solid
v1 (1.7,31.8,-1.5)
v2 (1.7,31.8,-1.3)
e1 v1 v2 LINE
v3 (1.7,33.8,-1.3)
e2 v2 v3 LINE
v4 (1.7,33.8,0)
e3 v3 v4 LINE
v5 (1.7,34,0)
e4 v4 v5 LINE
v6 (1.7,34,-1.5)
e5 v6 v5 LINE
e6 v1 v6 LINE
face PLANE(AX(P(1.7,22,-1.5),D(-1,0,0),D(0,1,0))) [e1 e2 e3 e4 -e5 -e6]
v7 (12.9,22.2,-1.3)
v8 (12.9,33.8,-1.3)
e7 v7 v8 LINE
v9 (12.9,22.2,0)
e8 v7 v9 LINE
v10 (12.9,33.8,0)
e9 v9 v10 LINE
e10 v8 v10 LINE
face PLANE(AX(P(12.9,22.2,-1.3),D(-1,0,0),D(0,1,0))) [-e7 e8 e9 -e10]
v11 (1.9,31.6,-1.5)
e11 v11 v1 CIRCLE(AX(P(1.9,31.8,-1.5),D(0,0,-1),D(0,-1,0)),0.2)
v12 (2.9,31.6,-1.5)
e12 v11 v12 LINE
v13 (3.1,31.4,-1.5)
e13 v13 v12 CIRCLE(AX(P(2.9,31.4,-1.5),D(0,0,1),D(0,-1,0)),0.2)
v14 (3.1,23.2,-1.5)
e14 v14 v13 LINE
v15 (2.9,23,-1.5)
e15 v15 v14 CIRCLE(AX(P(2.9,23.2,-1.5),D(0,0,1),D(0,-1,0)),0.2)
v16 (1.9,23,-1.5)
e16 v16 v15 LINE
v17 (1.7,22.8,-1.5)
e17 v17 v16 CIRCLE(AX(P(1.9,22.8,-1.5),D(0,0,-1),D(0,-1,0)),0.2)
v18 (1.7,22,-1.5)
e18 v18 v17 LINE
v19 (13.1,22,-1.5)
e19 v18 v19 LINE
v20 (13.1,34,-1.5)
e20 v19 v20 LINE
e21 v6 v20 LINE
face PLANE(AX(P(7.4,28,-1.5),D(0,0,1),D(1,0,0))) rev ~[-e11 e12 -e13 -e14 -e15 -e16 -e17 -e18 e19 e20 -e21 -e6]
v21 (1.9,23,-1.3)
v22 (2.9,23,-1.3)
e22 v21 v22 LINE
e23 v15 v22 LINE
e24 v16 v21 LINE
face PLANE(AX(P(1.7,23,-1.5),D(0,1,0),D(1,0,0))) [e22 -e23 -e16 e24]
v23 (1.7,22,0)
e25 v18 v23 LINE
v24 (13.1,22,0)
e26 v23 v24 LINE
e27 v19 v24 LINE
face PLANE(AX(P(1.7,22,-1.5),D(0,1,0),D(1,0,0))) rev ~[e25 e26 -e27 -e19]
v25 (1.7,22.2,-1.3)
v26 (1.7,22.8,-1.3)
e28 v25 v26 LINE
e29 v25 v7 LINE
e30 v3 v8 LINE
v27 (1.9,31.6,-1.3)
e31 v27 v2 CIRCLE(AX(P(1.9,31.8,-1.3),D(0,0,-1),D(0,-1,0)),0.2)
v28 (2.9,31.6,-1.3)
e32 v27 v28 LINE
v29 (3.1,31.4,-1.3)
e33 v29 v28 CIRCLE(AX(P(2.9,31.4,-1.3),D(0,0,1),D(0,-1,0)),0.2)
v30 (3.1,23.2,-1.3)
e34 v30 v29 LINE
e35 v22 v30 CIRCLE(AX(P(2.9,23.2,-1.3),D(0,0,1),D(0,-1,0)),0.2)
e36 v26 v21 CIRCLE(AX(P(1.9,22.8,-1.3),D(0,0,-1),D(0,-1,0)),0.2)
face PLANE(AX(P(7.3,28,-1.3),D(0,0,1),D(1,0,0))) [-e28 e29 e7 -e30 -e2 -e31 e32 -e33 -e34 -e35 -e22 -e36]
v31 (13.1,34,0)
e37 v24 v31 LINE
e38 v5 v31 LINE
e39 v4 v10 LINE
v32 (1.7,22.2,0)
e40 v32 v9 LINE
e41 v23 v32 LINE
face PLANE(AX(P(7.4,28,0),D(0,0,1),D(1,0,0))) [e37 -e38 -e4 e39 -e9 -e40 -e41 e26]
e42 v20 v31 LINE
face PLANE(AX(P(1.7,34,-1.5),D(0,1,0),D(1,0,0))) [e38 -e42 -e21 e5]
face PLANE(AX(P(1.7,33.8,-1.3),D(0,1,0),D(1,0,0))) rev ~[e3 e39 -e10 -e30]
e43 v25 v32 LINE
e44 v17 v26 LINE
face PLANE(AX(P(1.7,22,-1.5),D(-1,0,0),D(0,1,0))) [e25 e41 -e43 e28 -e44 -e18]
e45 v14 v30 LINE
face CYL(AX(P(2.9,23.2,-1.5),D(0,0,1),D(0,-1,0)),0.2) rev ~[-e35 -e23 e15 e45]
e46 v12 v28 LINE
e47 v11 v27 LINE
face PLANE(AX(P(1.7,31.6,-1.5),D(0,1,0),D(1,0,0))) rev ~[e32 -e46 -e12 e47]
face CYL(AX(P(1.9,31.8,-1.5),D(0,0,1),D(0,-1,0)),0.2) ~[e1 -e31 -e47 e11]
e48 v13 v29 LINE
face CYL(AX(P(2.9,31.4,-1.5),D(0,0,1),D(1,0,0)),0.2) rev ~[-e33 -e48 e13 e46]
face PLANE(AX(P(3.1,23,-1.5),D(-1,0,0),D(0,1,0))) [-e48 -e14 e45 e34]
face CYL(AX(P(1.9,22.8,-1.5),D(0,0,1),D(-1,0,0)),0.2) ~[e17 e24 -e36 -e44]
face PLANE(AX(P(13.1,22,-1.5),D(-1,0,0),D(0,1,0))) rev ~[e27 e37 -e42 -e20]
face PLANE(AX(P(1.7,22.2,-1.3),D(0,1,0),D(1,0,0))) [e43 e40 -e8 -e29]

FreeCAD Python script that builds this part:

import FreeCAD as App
import Part
import Sketcher
from FreeCAD import Vector
Q = App.Units.Quantity


def edges_at(feature, points):
    """Names of the edges that pass closest to the given points."""
    edges = feature.Shape.Edges
    near = lambda p: min(range(len(edges)), key=lambda i: edges[i].distToShape(Part.Vertex(*p))[0])
    return sorted({f"Edge{near(p) + 1}" for p in points})


def add_polygon(sketch, points):
    """Adds a closed chain of lines whose ends are joined by coincident constraints."""
    first, n = sketch.GeometryCount, len(points)
    for a, b in zip(points, points[1:] + points[:1]):
        sketch.addGeometry(Part.LineSegment(App.Vector(*a, 0), App.Vector(*b, 0)), False)
    for i in range(n):
        sketch.addConstraint(Sketcher.Constraint("Coincident", first + i, 2, first + (i + 1) % n, 1))

doc = App.newDocument("Part")
body = doc.addObject("PartDesign::Body", "Body")

# Sketch on XY plane
sketch1 = doc.addObject("Sketcher::SketchObject", "Sketch")
body.addObject(sketch1)
sketch1.AttachmentSupport = (doc.XY_Plane, [""])
sketch1.MapMode = "FlatFace"
add_polygon(sketch1, [(0, 9.6), (0, 1), (1.4, 1), (1.4, 9.6)])  # lines 0-3
sketch1.addConstraint([
    Sketcher.Constraint("Vertical", 0),
    Sketcher.Constraint("Horizontal", 1),
    Sketcher.Constraint("Vertical", 2),
    Sketcher.Constraint("Horizontal", 3),
    Sketcher.Constraint("PointOnObject", 0, 2, -2),
    Sketcher.Constraint("DistanceX", 1, 1, 1, 2, Q("1.4 mm")),
    Sketcher.Constraint("DistanceY", 0, 2, 0, 1, Q("8.6 mm")),
    Sketcher.Constraint("DistanceY", -1, 1, 0, 2, Q("1 mm")),
])
pad1 = doc.addObject("PartDesign::Pad", "Pad")
body.addObject(pad1)
pad1.Profile = sketch1
pad1.Length = 0.2
doc.recompute()

fillet = doc.addObject("PartDesign::Fillet", "Fillet")
body.addObject(fillet)
fillet.Base = (pad1, edges_at(pad1, [(1.4, 1, 0.1), (1.4, 9.6, 0.1)]))
fillet.Radius = 0.2
body2 = doc.addObject("PartDesign::Body", "Body001")

# Sketch on XY plane
sketch2 = doc.addObject("Sketcher::SketchObject", "Sketch001")
body2.addObject(sketch2)
sketch2.AttachmentSupport = (doc.getObject("XY_Plane001"), [""])
sketch2.MapMode = "FlatFace"
sketch2.AttachmentOffset = App.Placement(Vector(0, 0, 0.2), App.Rotation())
add_polygon(sketch2, [(0, 12), (0, 0), (11, 0), (11, 12)])  # lines 0-3
sketch2.addConstraint([
    Sketcher.Constraint("Vertical", 0),
    Sketcher.Constraint("Horizontal", 1),
    Sketcher.Constraint("Vertical", 2),
    Sketcher.Constraint("Horizontal", 3),
    Sketcher.Constraint("PointOnObject", 0, 2, -2),
    Sketcher.Constraint("DistanceX", 1, 1, 1, 2, Q("11.2 mm")),
    Sketcher.Constraint("DistanceY", 0, 2, 0, 1, Q("11.6 mm")),
    Sketcher.Constraint("DistanceY", -1, 1, 0, 2, Q("0.2 mm")),
])
pad2 = doc.addObject("PartDesign::Pad", "Pad001")
body2.addObject(pad2)
pad2.Profile = sketch2
pad2.Length = 1.3
doc.recompute()

boolean = doc.addObject("PartDesign::Boolean", "Boolean")
body2.addObject(boolean)
boolean.Type = "Fuse"
boolean.addObjects([body])
body3 = doc.addObject("PartDesign::Body", "Body002")

# Sketch on XY plane
sketch3 = doc.addObject("Sketcher::SketchObject", "Sketch002")
body3.addObject(sketch3)
sketch3.AttachmentSupport = (doc.getObject("XY_Plane002"), [""])
sketch3.MapMode = "FlatFace"
add_polygon(sketch3, [(0, 12), (0, 0), (11, 0), (11, 12)])  # lines 0-3
sketch3.addConstraint([
    Sketcher.Constraint("Vertical", 0),
    Sketcher.Constraint("Horizontal", 1),
    Sketcher.Constraint("Vertical", 2),
    Sketcher.Constraint("Horizontal", 3),
    Sketcher.Constraint("Coincident", 0, 2, -1, 1),
    Sketcher.Constraint("DistanceY", 0, 2, 0, 1, Q("12 mm")),
    Sketcher.Constraint("DistanceX", 1, 1, 1, 2, Q("11.4 mm")),
])
pad3 = doc.addObject("PartDesign::Pad", "Pad002")
body3.addObject(pad3)
pad3.Profile = sketch3
pad3.Length = 1.5
doc.recompute()

boolean2 = doc.addObject("PartDesign::Boolean", "Boolean001")
body3.addObject(boolean2)
boolean2.Type = "Cut"
boolean2.addObjects([body2])
doc.recompute()

fillet2 = doc.addObject("PartDesign::Fillet", "Fillet001")
body3.addObject(fillet2)
fillet2.Base = (boolean2, edges_at(boolean2, [(0, 1, 0.1), (0, 9.6, 0.1)]))
fillet2.Radius = 0.2
body4 = doc.addObject("PartDesign::Body", "Body003")
doc.recompute()

body3.Placement = App.Placement(Vector(1.7, 22, -1.5), App.Rotation(Vector(0, 0, 1), 0))
boolean3 = doc.addObject("PartDesign::Boolean", "Boolean002")
body4.addObject(boolean3)
boolean3.Type = "Fuse"
boolean3.addObjects([body3])

doc.recompute()
